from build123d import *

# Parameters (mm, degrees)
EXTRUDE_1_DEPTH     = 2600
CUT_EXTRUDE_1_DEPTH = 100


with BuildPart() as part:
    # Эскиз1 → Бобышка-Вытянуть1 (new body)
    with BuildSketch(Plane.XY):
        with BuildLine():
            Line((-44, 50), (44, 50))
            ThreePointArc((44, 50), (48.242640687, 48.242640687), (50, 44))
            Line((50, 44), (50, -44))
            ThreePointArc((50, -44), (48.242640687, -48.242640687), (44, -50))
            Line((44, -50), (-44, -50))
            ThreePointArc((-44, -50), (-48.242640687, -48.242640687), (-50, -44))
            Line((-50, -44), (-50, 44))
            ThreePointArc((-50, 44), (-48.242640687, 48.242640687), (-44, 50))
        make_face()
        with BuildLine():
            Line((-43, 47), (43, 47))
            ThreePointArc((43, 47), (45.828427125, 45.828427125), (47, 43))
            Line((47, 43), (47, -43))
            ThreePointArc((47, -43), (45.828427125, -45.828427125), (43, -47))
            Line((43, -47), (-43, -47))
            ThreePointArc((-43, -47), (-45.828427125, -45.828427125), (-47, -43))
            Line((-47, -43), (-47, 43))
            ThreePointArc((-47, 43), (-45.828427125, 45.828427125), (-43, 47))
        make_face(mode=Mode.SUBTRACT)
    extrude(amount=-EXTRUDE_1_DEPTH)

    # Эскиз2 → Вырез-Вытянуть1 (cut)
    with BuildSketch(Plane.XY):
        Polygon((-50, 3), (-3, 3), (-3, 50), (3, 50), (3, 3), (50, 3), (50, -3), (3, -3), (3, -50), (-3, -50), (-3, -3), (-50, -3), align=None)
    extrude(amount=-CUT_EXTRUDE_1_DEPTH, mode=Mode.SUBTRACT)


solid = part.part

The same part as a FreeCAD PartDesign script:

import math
import FreeCAD as App
import Part
import Sketcher

V = App.Vector
Q = App.Units.Quantity


def add_polygon(sketch, points):
    """Adds a closed chain of lines whose ends are joined by coincident constraints."""
    first, n = sketch.GeometryCount, len(points)
    for a, b in zip(points, points[1:] + points[:1]):
        sketch.addGeometry(Part.LineSegment(App.Vector(*a, 0), App.Vector(*b, 0)), False)
    for i in range(n):
        sketch.addConstraint(Sketcher.Constraint("Coincident", first + i, 2, first + (i + 1) % n, 1))

doc = App.newDocument("Part")
body = doc.addObject("PartDesign::Body", "Body")

# Sketch on XY plane
sketch1 = body.newObject("Sketcher::SketchObject", "Sketch")
sketch1.AttachmentSupport = (doc.getObject("XY_Plane"), [""])
sketch1.MapMode = "FlatFace"
sketch1.addGeometry([
    Part.LineSegment(V(44, 50, 0), V(-44, 50, 0)),  # 0
    Part.ArcOfCircle(Part.Circle(V(-44, 44, 0), V(0, 0, 1), 6), math.radians(90), math.radians(180)),  # 1
    Part.LineSegment(V(-50, 44, 0), V(-50, -44, 0)),  # 2
    Part.ArcOfCircle(Part.Circle(V(-44, -44, 0), V(0, 0, 1), 6), math.radians(180), math.radians(270)),  # 3
    Part.LineSegment(V(-44, -50, 0), V(44, -50, 0)),  # 4
    Part.ArcOfCircle(Part.Circle(V(44, -44, 0), V(0, 0, 1), 6), math.radians(-90), math.radians(0)),  # 5
    Part.LineSegment(V(50, -44, 0), V(50, 44, 0)),  # 6
    Part.ArcOfCircle(Part.Circle(V(44, 44, 0), V(0, 0, 1), 6), math.radians(0), math.radians(90)),  # 7
    Part.LineSegment(V(-43, 47, 0), V(43, 47, 0)),  # 8
    Part.ArcOfCircle(Part.Circle(V(43, 43, 0), V(0, 0, 1), 4), math.radians(0), math.radians(90)),  # 9
    Part.LineSegment(V(47, 43, 0), V(47, -43, 0)),  # 10
    Part.ArcOfCircle(Part.Circle(V(43, -43, 0), V(0, 0, 1), 4), math.radians(-90), math.radians(0)),  # 11
    Part.LineSegment(V(43, -47, 0), V(-43, -47, 0)),  # 12
    Part.ArcOfCircle(Part.Circle(V(-43, -43, 0), V(0, 0, 1), 4), math.radians(180), math.radians(270)),  # 13
    Part.LineSegment(V(-47, -43, 0), V(-47, 43, 0)),  # 14
    Part.ArcOfCircle(Part.Circle(V(-43, 43, 0), V(0, 0, 1), 4), math.radians(90), math.radians(180)),  # 15
], False)
sketch1.addConstraint([
    Sketcher.Constraint("Tangent", 0, 2, 1, 1),
    Sketcher.Constraint("Tangent", 1, 2, 2, 1),
    Sketcher.Constraint("Tangent", 2, 2, 3, 1),
    Sketcher.Constraint("Tangent", 3, 2, 4, 1),
    Sketcher.Constraint("Tangent", 4, 2, 5, 1),
    Sketcher.Constraint("Tangent", 5, 2, 6, 1),
    Sketcher.Constraint("Tangent", 6, 2, 7, 1),
    Sketcher.Constraint("Tangent", 7, 2, 0, 1),
    Sketcher.Constraint("Tangent", 8, 2, 9, 2),
    Sketcher.Constraint("Tangent", 9, 1, 10, 1),
    Sketcher.Constraint("Tangent", 10, 2, 11, 2),
    Sketcher.Constraint("Tangent", 11, 1, 12, 1),
    Sketcher.Constraint("Tangent", 12, 2, 13, 2),
    Sketcher.Constraint("Tangent", 13, 1, 14, 1),
    Sketcher.Constraint("Tangent", 14, 2, 15, 2),
    Sketcher.Constraint("Tangent", 15, 1, 8, 1),
    Sketcher.Constraint("Horizontal", 0),
    Sketcher.Constraint("Vertical", 2),
    Sketcher.Constraint("Horizontal", 4),
    Sketcher.Constraint("Vertical", 6),
    Sketcher.Constraint("Horizontal", 8),
    Sketcher.Constraint("Vertical", 10),
    Sketcher.Constraint("Horizontal", 12),
    Sketcher.Constraint("Vertical", 14),
    Sketcher.Constraint("Equal", 1, 3),
    Sketcher.Constraint("Equal", 3, 5),
    Sketcher.Constraint("Equal", 5, 7),
    Sketcher.Constraint("Equal", 9, 11),
    Sketcher.Constraint("Equal", 11, 13),
    Sketcher.Constraint("Equal", 13, 15),
    Sketcher.Constraint("Symmetric", 1, 3, 5, 3, -1, 1),
    Sketcher.Constraint("Symmetric", 9, 3, 13, 3, -1, 1),
    Sketcher.Constraint("Equal", 4, 2),
    Sketcher.Constraint("Equal", 12, 10),
    Sketcher.Constraint("Radius", 1, Q("6 mm")),
    Sketcher.Constraint("Radius", 9, Q("4 mm")),
    Sketcher.Constraint("DistanceX", 0, 2, 0, 1, Q("88 mm")),
    Sketcher.Constraint("DistanceX", 8, 1, 8, 2, Q("86 mm")),
])
pad1 = body.newObject("PartDesign::Pad", "Pad")
pad1.Profile = sketch1
pad1.Length = 2600
pad1.Reversed = True

# Sketch on XY plane
sketch2 = body.newObject("Sketcher::SketchObject", "Sketch001")
sketch2.AttachmentSupport = (doc.getObject("XY_Plane"), [""])
sketch2.MapMode = "FlatFace"
add_polygon(sketch2, [(-3, 3), (-50, 3), (-50, -3), (-3, -3), (-3, -50), (3, -50), (3, -3), (50, -3), (50, 3), (3, 3), (3, 50), (-3, 50)])  # lines 0-11
sketch2.addConstraint([
    Sketcher.Constraint("Horizontal", 0),
    Sketcher.Constraint("Vertical", 1),
    Sketcher.Constraint("Horizontal", 2),
    Sketcher.Constraint("Vertical", 3),
    Sketcher.Constraint("Horizontal", 4),
    Sketcher.Constraint("Vertical", 5),
    Sketcher.Constraint("Horizontal", 6),
    Sketcher.Constraint("Vertical", 7),
    Sketcher.Constraint("Horizontal", 8),
    Sketcher.Constraint("Vertical", 9),
    Sketcher.Constraint("Horizontal", 10),
    Sketcher.Constraint("Vertical", 11),
    Sketcher.Constraint("Symmetric", 0, 2, 6, 2, -1, 1),
    Sketcher.Constraint("Symmetric", 2, 2, 8, 2, -1, 1),
    Sketcher.Constraint("Symmetric", 4, 2, 10, 2, -1, 1),
    Sketcher.Constraint("Symmetric", 2, 2, 5, 2, -2),
    Sketcher.Constraint("Equal", 10, 1),
    Sketcher.Constraint("Equal", 8, 3),
    Sketcher.Constraint("DistanceX", 0, 2, 0, 1, Q("47 mm")),
    Sketcher.Constraint("DistanceX", 4, 1, 4, 2, Q("6 mm")),
])
pocket1 = body.newObject("PartDesign::Pocket", "Pocket")
pocket1.Profile = sketch2
pocket1.Length = 100

doc.recompute()
